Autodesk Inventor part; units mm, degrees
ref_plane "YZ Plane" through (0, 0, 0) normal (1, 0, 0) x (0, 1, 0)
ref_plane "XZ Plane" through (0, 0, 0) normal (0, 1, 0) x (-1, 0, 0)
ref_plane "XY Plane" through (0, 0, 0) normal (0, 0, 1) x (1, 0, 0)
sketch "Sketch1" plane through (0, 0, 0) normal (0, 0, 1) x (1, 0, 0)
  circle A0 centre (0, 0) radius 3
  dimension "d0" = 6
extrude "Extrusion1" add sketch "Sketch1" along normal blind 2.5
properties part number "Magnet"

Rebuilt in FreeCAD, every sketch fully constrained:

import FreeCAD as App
import Part
import Sketcher
Q = App.Units.Quantity

doc = App.newDocument("Part")
body = doc.addObject("PartDesign::Body", "Body")

# Sketch on XY plane
sketch1 = doc.addObject("Sketcher::SketchObject", "Sketch")
body.addObject(sketch1)
sketch1.AttachmentSupport = (doc.XY_Plane, [""])
sketch1.MapMode = "FlatFace"
sketch1.addGeometry(Part.Circle(App.Vector(0, 0, 0), App.Vector(0, 0, 1), 3), False)
sketch1.addConstraint([
    Sketcher.Constraint("Coincident", 0, 3, -1, 1),
    Sketcher.Constraint("Diameter", 0, Q("6 mm")),
])
pad1 = doc.addObject("PartDesign::Pad", "Pad")
body.addObject(pad1)
pad1.Profile = sketch1
pad1.Length = 2.5

doc.recompute()
